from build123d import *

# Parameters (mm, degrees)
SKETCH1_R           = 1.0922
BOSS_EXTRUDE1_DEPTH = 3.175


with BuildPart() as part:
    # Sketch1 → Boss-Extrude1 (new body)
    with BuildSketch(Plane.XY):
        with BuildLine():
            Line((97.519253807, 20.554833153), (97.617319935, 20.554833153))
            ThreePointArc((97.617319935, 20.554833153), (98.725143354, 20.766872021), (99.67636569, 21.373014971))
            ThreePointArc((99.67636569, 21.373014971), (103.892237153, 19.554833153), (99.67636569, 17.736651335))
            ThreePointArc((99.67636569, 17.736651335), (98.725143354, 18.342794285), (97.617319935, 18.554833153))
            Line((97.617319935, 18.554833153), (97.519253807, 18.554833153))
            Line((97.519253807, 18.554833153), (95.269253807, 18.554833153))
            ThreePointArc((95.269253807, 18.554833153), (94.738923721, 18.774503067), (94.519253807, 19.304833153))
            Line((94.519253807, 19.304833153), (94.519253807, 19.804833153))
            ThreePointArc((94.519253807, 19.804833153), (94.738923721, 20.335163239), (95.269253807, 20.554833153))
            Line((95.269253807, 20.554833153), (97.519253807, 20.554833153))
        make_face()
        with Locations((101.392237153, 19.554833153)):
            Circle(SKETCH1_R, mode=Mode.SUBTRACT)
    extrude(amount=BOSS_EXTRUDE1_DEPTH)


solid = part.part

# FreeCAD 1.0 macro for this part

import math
import FreeCAD as App
import Part
import Sketcher
from FreeCAD import Vector

doc = App.newDocument("Part")
body = doc.addObject("PartDesign::Body", "Body")

sketch1 = body.newObject("Sketcher::SketchObject", "Sketch")
sketch1.AttachmentSupport = (doc.getObject("XY_Plane"), [""])
sketch1.MapMode = "FlatFace"
sketch1.addGeometry(Part.ArcOfCircle(Part.Circle(Vector(97.6, 23.6, 0), Vector(0, 0, 1), 3), math.radians(-90), math.radians(-47)), False)
sketch1.addGeometry(Part.LineSegment(Vector(97.6, 20.6, 0), Vector(95.3, 20.6, 0)), False)
sketch1.addGeometry(Part.ArcOfCircle(Part.Circle(Vector(95.3, 19.8, 0), Vector(0, 0, 1), 0.8), math.radians(90), math.radians(180)), False)
sketch1.addGeometry(Part.LineSegment(Vector(94.5, 19.8, 0), Vector(94.5, 19.3, 0)), False)
sketch1.addGeometry(Part.ArcOfCircle(Part.Circle(Vector(95.3, 19.3, 0), Vector(0, 0, 1), 0.8), math.radians(180), math.radians(270)), False)
sketch1.addGeometry(Part.LineSegment(Vector(95.3, 18.6, 0), Vector(97.6, 18.6, 0)), False)
sketch1.addGeometry(Part.ArcOfCircle(Part.Circle(Vector(97.6, 15.6, 0), Vector(0, 0, 1), 3), math.radians(47), math.radians(90)), False)
sketch1.addGeometry(Part.ArcOfCircle(Part.Circle(Vector(101.4, 19.6, 0), Vector(0, 0, 1), 2.5), math.radians(-133), math.radians(133)), False)
sketch1.addGeometry(Part.Circle(Vector(101.4, 19.6, 0), Vector(0, 0, 1), 1.1), False)
sketch1.addConstraint(Sketcher.Constraint("Tangent", 0, 1, 1, 1))
sketch1.addConstraint(Sketcher.Constraint("Tangent", 1, 2, 2, 1))
sketch1.addConstraint(Sketcher.Constraint("Tangent", 2, 2, 3, 1))
sketch1.addConstraint(Sketcher.Constraint("Tangent", 3, 2, 4, 1))
sketch1.addConstraint(Sketcher.Constraint("Tangent", 4, 2, 5, 1))
sketch1.addConstraint(Sketcher.Constraint("Tangent", 5, 2, 6, 2))
sketch1.addConstraint(Sketcher.Constraint("Tangent", 6, 1, 7, 1))
sketch1.addConstraint(Sketcher.Constraint("Tangent", 7, 2, 0, 2))
sketch1.addConstraint(Sketcher.Constraint("Horizontal", 1))
sketch1.addConstraint(Sketcher.Constraint("Vertical", 3))
sketch1.addConstraint(Sketcher.Constraint("Horizontal", 5))
sketch1.addConstraint(Sketcher.Constraint("Coincident", 8, 3, 7, 3))
sketch1.addConstraint(Sketcher.Constraint("Equal", 2, 4))
sketch1.addConstraint(Sketcher.Constraint("Equal", 0, 6))
sketch1.addConstraint(Sketcher.Constraint("Vertical", 0, 3, 6, 3))
sketch1.addConstraint(Sketcher.Constraint("Radius", 0, 3.0))
sketch1.addConstraint(Sketcher.Constraint("Radius", 7, 2.5))
sketch1.addConstraint(Sketcher.Constraint("Radius", 2, 0.75))
sketch1.addConstraint(Sketcher.Constraint("DistanceY", 3, 2, 3, 1, 0.5))
sketch1.addConstraint(Sketcher.Constraint("Diameter", 8, 2.1844))
sketch1.addConstraint(Sketcher.Constraint("DistanceX", 1, 2, 1, 1, 2.348066))
sketch1.addConstraint(Sketcher.Constraint("DistanceX", -1, 1, 0, 3, 97.61732))
sketch1.addConstraint(Sketcher.Constraint("DistanceY", -1, 1, 6, 1, 17.736651))
pad1 = body.newObject("PartDesign::Pad", "Pad")
pad1.Profile = sketch1
pad1.Length = 3.175

doc.recompute()
